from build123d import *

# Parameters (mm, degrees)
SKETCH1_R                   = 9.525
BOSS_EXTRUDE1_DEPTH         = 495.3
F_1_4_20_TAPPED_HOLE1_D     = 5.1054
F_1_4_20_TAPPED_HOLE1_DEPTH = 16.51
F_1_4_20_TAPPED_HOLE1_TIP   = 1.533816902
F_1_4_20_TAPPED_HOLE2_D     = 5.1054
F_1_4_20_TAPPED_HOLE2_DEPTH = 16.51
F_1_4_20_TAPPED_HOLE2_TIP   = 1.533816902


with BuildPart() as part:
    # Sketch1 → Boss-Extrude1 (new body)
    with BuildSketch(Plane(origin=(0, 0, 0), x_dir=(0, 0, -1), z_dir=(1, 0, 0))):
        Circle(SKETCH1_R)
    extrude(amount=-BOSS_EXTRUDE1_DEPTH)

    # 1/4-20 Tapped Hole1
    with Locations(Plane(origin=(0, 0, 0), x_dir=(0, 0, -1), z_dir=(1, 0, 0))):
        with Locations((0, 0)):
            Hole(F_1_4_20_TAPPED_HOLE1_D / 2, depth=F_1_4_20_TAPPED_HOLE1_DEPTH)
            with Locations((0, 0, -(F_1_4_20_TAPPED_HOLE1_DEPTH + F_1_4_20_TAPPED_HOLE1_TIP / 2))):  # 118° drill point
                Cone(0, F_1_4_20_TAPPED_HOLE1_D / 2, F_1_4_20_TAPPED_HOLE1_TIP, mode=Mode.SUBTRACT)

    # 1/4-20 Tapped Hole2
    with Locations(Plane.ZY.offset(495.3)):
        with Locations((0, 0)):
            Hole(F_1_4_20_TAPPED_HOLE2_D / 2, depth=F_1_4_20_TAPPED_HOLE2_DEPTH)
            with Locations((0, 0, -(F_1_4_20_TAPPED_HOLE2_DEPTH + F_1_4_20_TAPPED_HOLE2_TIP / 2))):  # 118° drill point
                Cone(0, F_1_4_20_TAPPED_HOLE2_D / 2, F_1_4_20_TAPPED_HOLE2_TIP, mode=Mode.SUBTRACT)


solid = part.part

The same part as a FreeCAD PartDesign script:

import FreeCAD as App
import Part
import Sketcher
Q = App.Units.Quantity

doc = App.newDocument("Part")
params = doc.addObject("Spreadsheet::Sheet", "Params")
for row, (alias, value) in enumerate([
    ("sketch1_diameter", "0.75 in"),
    ("pad1_length", "19.5 in"),
    ("sketch2_diameter", "0.201 in"),
    ("hole_diameter", "0.201 in"),
    ("hole_depth", "0.65 in"),
    ("sketch3_diameter", "0.201 in"),
    ("hole2_diameter", "0.201 in"),
    ("hole2_depth", "0.65 in"),
], start=1):
    params.set(f"A{row}", alias)
    params.set(f"B{row}", "=" + value)
    params.setAlias(f"B{row}", alias)

body = doc.addObject("PartDesign::Body", "Body")

# Sketch on YZ plane
sketch1 = body.newObject("Sketcher::SketchObject", "Sketch")
sketch1.AttachmentSupport = (doc.getObject("YZ_Plane"), [""])
sketch1.MapMode = "FlatFace"
sketch1.addGeometry(Part.Circle(App.Vector(0, 0, 0), App.Vector(0, 0, 1), 9.525), False)
sketch1.addConstraint([
    Sketcher.Constraint("Coincident", 0, 3, -1, 1),
    Sketcher.Constraint("Diameter", 0, Q("0.75 in")),
])
sketch1.setExpression("Constraints[1]", "Params.sketch1_diameter")
pad1 = body.newObject("PartDesign::Pad", "Pad")
pad1.Profile = sketch1
pad1.setExpression("Length", "Params.pad1_length")
pad1.Reversed = True

# Sketch on YZ plane
sketch2 = body.newObject("Sketcher::SketchObject", "Sketch001")
sketch2.AttachmentSupport = (doc.getObject("YZ_Plane"), [""])
sketch2.MapMode = "FlatFace"
sketch2.addGeometry(Part.Circle(App.Vector(0, 0, 0), App.Vector(0, 0, 1), 2.5527), False)
sketch2.addConstraint([
    Sketcher.Constraint("Coincident", 0, 3, -1, 1),
    Sketcher.Constraint("Diameter", 0, Q("0.201 in")),
])
sketch2.setExpression("Constraints[1]", "Params.sketch2_diameter")
doc.recompute()
hole = body.newObject("PartDesign::Hole", "Hole")
hole.Profile = sketch2
hole.ThreadType = "None"
hole.setExpression("Diameter", "Params.hole_diameter")
hole.DepthType = "Dimension"
hole.setExpression("Depth", "Params.hole_depth")
hole.DrillPoint = "Angled"
hole.DrillPointAngle = 118

# Sketch on YZ plane
sketch3 = body.newObject("Sketcher::SketchObject", "Sketch002")
sketch3.AttachmentSupport = (doc.getObject("YZ_Plane"), [""])
sketch3.MapMode = "FlatFace"
sketch3.AttachmentOffset = App.Placement(App.Vector(0, 0, -19.5 * 25.4), App.Rotation())
sketch3.addGeometry(Part.Circle(App.Vector(0, 0, 0), App.Vector(0, 0, 1), 2.5527), False)
sketch3.addConstraint([
    Sketcher.Constraint("Coincident", 0, 3, -1, 1),
    Sketcher.Constraint("Diameter", 0, Q("0.201 in")),
])
sketch3.setExpression("Constraints[1]", "Params.sketch3_diameter")
doc.recompute()
hole2 = body.newObject("PartDesign::Hole", "Hole001")
hole2.Profile = sketch3
hole2.ThreadType = "None"
hole2.setExpression("Diameter", "Params.hole2_diameter")
hole2.DepthType = "Dimension"
hole2.setExpression("Depth", "Params.hole2_depth")
hole2.DrillPoint = "Angled"
hole2.DrillPointAngle = 118
hole2.Reversed = True

doc.recompute()
